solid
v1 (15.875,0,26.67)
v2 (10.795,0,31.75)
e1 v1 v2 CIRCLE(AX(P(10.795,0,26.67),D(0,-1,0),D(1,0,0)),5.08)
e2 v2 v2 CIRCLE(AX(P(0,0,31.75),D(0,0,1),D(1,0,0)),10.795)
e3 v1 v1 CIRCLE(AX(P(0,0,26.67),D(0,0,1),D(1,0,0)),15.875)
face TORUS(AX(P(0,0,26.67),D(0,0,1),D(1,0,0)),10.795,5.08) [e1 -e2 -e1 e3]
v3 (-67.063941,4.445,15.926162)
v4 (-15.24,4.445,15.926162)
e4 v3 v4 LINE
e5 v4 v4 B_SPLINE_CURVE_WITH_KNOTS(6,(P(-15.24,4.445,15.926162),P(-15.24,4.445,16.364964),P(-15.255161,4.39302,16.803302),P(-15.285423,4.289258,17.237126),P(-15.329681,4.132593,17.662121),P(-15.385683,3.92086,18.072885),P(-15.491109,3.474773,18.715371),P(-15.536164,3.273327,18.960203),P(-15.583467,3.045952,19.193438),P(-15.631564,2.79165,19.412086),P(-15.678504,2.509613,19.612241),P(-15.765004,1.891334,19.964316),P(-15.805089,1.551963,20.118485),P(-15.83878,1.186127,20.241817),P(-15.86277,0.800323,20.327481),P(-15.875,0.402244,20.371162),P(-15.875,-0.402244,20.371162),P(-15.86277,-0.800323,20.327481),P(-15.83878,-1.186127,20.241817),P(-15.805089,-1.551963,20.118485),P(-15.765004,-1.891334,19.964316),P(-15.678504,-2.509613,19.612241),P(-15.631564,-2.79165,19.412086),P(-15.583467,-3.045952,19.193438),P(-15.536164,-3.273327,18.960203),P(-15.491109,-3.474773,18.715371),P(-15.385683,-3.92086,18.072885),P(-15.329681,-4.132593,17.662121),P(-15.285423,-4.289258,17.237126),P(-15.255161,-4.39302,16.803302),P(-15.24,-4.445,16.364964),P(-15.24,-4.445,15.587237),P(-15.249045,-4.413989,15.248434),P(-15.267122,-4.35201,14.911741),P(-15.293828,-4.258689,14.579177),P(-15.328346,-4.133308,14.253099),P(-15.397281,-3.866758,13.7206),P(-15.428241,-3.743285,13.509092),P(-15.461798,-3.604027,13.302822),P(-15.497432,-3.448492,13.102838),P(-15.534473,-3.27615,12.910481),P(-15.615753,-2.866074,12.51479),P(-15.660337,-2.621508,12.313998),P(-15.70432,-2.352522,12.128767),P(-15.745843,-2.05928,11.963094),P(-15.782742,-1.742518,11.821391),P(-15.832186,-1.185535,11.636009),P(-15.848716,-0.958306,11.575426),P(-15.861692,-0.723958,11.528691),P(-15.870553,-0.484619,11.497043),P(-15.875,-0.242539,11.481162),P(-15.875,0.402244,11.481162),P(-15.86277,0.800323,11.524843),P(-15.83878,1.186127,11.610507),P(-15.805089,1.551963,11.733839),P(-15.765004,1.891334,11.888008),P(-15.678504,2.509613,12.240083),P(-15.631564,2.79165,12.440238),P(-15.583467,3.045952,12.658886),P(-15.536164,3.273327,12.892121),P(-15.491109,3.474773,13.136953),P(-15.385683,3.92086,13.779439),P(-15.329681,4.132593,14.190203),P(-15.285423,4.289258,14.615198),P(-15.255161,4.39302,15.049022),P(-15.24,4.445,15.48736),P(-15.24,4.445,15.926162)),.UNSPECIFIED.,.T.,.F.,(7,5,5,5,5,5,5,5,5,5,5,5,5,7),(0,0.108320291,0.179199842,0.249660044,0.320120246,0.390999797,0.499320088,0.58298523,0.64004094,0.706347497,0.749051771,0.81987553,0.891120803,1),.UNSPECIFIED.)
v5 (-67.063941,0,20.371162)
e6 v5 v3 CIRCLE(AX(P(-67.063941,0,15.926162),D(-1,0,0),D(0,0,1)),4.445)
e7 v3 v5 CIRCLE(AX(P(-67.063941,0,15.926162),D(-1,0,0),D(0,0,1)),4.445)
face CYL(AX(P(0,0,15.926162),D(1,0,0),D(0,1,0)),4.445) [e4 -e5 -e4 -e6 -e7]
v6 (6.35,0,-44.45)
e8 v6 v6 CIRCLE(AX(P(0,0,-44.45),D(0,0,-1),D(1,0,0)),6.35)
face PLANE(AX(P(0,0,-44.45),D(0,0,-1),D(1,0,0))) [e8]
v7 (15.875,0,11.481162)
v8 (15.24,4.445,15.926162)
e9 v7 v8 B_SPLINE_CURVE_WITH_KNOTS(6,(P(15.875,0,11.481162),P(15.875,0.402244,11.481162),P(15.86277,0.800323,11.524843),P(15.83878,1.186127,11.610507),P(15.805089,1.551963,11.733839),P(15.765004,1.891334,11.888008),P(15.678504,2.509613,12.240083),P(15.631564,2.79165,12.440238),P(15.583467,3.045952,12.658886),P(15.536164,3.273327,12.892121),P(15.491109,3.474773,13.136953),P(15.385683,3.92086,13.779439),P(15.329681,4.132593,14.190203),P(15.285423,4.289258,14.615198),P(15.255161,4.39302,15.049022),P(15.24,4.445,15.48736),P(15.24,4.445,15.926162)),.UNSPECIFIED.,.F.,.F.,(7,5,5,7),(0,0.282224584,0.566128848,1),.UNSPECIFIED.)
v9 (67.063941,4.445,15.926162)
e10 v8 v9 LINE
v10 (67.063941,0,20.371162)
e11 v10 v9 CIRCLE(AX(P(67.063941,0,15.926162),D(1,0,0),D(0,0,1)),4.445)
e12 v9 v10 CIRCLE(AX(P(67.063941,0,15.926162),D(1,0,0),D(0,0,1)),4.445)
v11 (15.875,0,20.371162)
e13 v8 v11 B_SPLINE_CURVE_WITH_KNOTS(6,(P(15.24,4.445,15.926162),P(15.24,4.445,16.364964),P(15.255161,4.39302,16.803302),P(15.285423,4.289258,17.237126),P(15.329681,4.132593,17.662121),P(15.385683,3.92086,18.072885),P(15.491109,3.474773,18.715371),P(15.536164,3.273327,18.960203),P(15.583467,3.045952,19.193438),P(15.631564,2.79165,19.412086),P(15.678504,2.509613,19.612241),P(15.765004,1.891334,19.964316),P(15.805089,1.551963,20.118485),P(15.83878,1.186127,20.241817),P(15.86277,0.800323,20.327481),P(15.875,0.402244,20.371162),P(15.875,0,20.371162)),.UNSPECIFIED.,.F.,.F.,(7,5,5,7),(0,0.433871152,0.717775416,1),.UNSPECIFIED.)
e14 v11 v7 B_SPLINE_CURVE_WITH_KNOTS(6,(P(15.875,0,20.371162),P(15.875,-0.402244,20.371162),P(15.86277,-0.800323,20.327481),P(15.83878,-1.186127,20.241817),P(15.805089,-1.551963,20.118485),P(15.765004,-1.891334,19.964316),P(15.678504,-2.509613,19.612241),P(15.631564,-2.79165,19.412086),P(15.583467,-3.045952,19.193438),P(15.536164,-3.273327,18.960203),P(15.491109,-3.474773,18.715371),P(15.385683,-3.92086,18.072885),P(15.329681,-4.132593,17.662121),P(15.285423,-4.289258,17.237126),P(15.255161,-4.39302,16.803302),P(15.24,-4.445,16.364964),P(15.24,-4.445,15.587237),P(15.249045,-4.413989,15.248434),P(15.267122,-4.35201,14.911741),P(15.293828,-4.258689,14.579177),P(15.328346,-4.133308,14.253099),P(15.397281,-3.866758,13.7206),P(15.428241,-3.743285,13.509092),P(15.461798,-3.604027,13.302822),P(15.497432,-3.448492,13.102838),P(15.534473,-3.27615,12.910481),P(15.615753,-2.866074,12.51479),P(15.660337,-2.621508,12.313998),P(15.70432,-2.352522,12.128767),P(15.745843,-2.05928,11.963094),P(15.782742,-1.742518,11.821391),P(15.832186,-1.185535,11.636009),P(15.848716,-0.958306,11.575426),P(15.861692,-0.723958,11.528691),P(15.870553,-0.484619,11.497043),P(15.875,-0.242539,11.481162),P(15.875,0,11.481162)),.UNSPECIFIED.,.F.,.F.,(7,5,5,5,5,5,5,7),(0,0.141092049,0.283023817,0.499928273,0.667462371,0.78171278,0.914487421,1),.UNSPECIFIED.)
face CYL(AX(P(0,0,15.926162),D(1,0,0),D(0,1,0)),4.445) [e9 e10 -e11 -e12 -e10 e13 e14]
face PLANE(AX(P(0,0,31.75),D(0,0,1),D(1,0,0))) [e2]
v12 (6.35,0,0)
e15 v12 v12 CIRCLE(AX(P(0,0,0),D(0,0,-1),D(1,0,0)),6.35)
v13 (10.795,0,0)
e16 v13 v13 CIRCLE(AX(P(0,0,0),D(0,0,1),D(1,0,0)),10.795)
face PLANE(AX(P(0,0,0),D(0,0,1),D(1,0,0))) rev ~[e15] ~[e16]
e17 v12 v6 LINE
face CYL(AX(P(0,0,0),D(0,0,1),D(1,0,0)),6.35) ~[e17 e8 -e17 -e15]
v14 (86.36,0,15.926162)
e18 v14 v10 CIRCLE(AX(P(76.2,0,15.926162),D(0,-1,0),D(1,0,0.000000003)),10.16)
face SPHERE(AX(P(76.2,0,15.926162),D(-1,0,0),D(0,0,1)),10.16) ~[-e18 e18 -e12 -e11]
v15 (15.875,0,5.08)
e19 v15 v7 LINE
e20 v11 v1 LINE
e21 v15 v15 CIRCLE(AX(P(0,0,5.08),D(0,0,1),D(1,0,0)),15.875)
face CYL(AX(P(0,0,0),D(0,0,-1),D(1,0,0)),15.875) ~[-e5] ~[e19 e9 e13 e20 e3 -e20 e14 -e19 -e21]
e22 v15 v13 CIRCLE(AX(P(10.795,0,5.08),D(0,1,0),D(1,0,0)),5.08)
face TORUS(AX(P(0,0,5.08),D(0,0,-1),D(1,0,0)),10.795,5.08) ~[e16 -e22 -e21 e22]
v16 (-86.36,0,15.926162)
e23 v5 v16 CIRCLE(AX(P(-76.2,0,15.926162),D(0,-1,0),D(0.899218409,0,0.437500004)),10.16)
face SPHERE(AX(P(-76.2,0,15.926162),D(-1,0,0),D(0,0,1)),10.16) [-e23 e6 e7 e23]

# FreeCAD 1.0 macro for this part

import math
import FreeCAD as App
import Part
import Sketcher
Q = App.Units.Quantity


def edges_at(feature, points):
    """Names of the edges that pass closest to the given points."""
    edges = feature.Shape.Edges
    near = lambda p: min(range(len(edges)), key=lambda i: edges[i].distToShape(Part.Vertex(*p))[0])
    return sorted({f"Edge{near(p) + 1}" for p in points})

doc = App.newDocument("Part")
body = doc.addObject("PartDesign::Body", "Body")

# Sketch on XY plane
sketch1 = body.newObject("Sketcher::SketchObject", "Sketch")
sketch1.AttachmentSupport = (doc.getObject("XY_Plane"), [""])
sketch1.MapMode = "FlatFace"
sketch1.addGeometry(Part.Circle(App.Vector(0, 0, 0), App.Vector(0, 0, 1), 15.875), False)
sketch1.addConstraint([
    Sketcher.Constraint("Coincident", 0, 3, -1, 1),
    Sketcher.Constraint("Diameter", 0, Q("1.25 in")),
])
pad1 = body.newObject("PartDesign::Pad", "Pad")
pad1.Profile = sketch1
pad1.Length = Q("1.25 in")

# Sketch on XY plane
sketch2 = body.newObject("Sketcher::SketchObject", "Sketch001")
sketch2.AttachmentSupport = (doc.getObject("XY_Plane"), [""])
sketch2.MapMode = "FlatFace"
sketch2.addGeometry(Part.Circle(App.Vector(0, 0, 0), App.Vector(0, 0, 1), 6.35), False)
sketch2.addConstraint([
    Sketcher.Constraint("Coincident", 0, 3, -1, 1),
    Sketcher.Constraint("Diameter", 0, Q("0.5 in")),
])
pad2 = body.newObject("PartDesign::Pad", "Pad001")
pad2.Profile = sketch2
pad2.Length = Q("1.75 in")
pad2.Reversed = True

# Sketch on YZ plane
sketch3 = body.newObject("Sketcher::SketchObject", "Sketch002")
sketch3.AttachmentSupport = (doc.getObject("YZ_Plane"), [""])
sketch3.MapMode = "FlatFace"
sketch3.addGeometry(Part.Circle(App.Vector(0, 15.926162, 0), App.Vector(0, 0, 1), 4.445), False)
sketch3.addConstraint([
    Sketcher.Constraint("PointOnObject", 0, 3, -2),
    Sketcher.Constraint("Diameter", 0, Q("0.35 in")),
    Sketcher.Constraint("DistanceY", -1, 1, 0, 3, Q("15.926162 mm")),
])
pad3 = body.newObject("PartDesign::Pad", "Pad002")
pad3.Profile = sketch3
pad3.Length = Q("6 in")
pad3.Midplane = True

# Sketch on XZ plane
sketch4 = body.newObject("Sketcher::SketchObject", "Sketch003")
sketch4.AttachmentSupport = (doc.getObject("XZ_Plane"), [""])
sketch4.MapMode = "FlatFace"
sketch4.addGeometry([
    Part.LineSegment(App.Vector(-76.2, 15.926162, 0), App.Vector(-76.2, 20.371162, 0)),
    Part.LineSegment(App.Vector(-76.2, 20.371162, 0), App.Vector(-67.063941, 20.371162, 0)),
    Part.ArcOfCircle(Part.Circle(App.Vector(-76.2, 15.926162, 0), App.Vector(0, 0, 1), 10.16), math.radians(25.94448), math.radians(180)),
    Part.LineSegment(App.Vector(-86.36, 15.926162, 0), App.Vector(-76.2, 15.926162, 0)),
], False)
sketch4.addGeometry(Part.LineSegment(App.Vector(-67.063941, 15.926162, 0), App.Vector(-86.36, 15.926162, 0)), True)  # axis
sketch4.addConstraint([
    Sketcher.Constraint("Coincident", 0, 2, 1, 1),
    Sketcher.Constraint("Coincident", 1, 2, 2, 1),
    Sketcher.Constraint("Coincident", 2, 2, 3, 1),
    Sketcher.Constraint("Coincident", 3, 2, 0, 1),
    Sketcher.Constraint("Vertical", 0),
    Sketcher.Constraint("Horizontal", 1),
    Sketcher.Constraint("Horizontal", 3),
    Sketcher.Constraint("Horizontal", 4),
    Sketcher.Constraint("Coincident", 3, 2, 2, 3),
    Sketcher.Constraint("Coincident", 4, 2, 2, 2),
    Sketcher.Constraint("Vertical", 1, 2, 4, 1),
    Sketcher.Constraint("Radius", 2, Q("0.4 in")),
    Sketcher.Constraint("DistanceX", 2, 3, -1, 1, Q("3 in")),
    Sketcher.Constraint("DistanceY", 0, 1, 0, 2, Q("0.175 in")),
    Sketcher.Constraint("DistanceY", -1, 1, 2, 3, Q("15.926162 mm")),
])
revolution = body.newObject("PartDesign::Revolution", "Revolution")
revolution.Profile = sketch4
revolution.ReferenceAxis = (sketch4, ["Axis0"])
revolution.Angle = 360

# Sketch on XZ plane
sketch5 = body.newObject("Sketcher::SketchObject", "Sketch004")
sketch5.AttachmentSupport = (doc.getObject("XZ_Plane"), [""])
sketch5.MapMode = "FlatFace"
sketch5.addGeometry([
    Part.ArcOfCircle(Part.Circle(App.Vector(76.2, 15.926162, 0), App.Vector(0, 0, 1), 10.16), math.radians(0), math.radians(154.05552)),
    Part.LineSegment(App.Vector(67.063941, 20.371162, 0), App.Vector(76.2, 20.371162, 0)),
    Part.LineSegment(App.Vector(76.2, 20.371162, 0), App.Vector(76.2, 15.926162, 0)),
    Part.LineSegment(App.Vector(76.2, 15.926162, 0), App.Vector(86.36, 15.926162, 0)),
], False)
sketch5.addGeometry(Part.LineSegment(App.Vector(67.063941, 15.926162, 0), App.Vector(86.36, 15.926162, 0)), True)  # axis
sketch5.addConstraint([
    Sketcher.Constraint("Coincident", 0, 2, 1, 1),
    Sketcher.Constraint("Coincident", 1, 2, 2, 1),
    Sketcher.Constraint("Coincident", 2, 2, 3, 1),
    Sketcher.Constraint("Coincident", 3, 2, 0, 1),
    Sketcher.Constraint("Horizontal", 1),
    Sketcher.Constraint("Vertical", 2),
    Sketcher.Constraint("Horizontal", 3),
    Sketcher.Constraint("Horizontal", 4),
    Sketcher.Constraint("Coincident", 2, 2, 0, 3),
    Sketcher.Constraint("Coincident", 4, 2, 3, 2),
    Sketcher.Constraint("Vertical", 0, 2, 4, 1),
    Sketcher.Constraint("Radius", 0, Q("0.4 in")),
    Sketcher.Constraint("DistanceX", -1, 1, 0, 3, Q("3 in")),
    Sketcher.Constraint("DistanceY", 2, 2, 2, 1, Q("0.175 in")),
    Sketcher.Constraint("DistanceY", -1, 1, 0, 3, Q("15.926162 mm")),
])
revolution2 = body.newObject("PartDesign::Revolution", "Revolution001")
revolution2.Profile = sketch5
revolution2.ReferenceAxis = (sketch5, ["Axis0"])
revolution2.Angle = 360
doc.recompute()

fillet = body.newObject("PartDesign::Fillet", "Fillet")
fillet.Base = (revolution2, edges_at(revolution2, [(-15.875, 0, 31.75), (-15.875, 0, 0)]))
fillet.Radius = Q("0.2 in")

doc.recompute()
